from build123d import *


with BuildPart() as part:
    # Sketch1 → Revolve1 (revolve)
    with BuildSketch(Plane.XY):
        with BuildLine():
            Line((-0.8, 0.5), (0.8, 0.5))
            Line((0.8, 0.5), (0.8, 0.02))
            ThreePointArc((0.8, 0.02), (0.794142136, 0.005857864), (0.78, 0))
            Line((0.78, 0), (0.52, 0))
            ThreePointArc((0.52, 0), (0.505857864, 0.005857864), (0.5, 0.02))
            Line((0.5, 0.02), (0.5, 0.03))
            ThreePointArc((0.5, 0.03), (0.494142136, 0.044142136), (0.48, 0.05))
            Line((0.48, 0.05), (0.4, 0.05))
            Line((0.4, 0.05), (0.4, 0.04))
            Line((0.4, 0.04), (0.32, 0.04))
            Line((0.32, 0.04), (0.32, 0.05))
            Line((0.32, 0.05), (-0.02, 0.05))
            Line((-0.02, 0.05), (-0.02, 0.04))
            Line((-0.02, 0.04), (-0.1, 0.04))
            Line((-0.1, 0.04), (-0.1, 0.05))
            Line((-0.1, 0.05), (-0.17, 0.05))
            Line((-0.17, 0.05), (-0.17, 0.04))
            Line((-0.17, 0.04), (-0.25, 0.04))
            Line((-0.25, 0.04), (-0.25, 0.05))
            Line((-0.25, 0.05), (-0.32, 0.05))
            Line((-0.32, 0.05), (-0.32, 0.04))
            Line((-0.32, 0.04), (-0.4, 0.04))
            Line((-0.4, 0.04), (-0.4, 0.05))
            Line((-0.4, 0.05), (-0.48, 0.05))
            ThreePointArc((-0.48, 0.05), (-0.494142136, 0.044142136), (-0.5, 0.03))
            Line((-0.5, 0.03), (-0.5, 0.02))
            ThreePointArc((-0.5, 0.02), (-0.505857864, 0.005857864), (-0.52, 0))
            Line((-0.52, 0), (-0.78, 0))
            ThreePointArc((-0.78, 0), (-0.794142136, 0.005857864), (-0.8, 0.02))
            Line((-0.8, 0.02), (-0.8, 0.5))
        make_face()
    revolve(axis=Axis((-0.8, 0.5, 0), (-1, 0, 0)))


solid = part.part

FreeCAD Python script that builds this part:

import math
import FreeCAD as App
import Part
import Sketcher

V = App.Vector

doc = App.newDocument("Part")
params = doc.addObject("Spreadsheet::Sheet", "Params")
for row, (alias, value) in enumerate([
    ("sketch1_radius", "0.02 mm"),
    ("sketch1_width", "1.6 mm"),
    ("sketch1_width2", "0.08 mm"),
    ("sketch1_width3", "0.07 mm"),
    ("sketch1_height", "0.48 mm"),
    ("revolution_angle", "360 deg"),
], start=1):
    params.set(f"A{row}", alias)
    params.set(f"B{row}", "=" + value)
    params.setAlias(f"B{row}", alias)

body = doc.addObject("PartDesign::Body", "Body")

# Sketch on XY plane
sketch1 = body.newObject("Sketcher::SketchObject", "Sketch")
sketch1.AttachmentSupport = (doc.getObject("XY_Plane"), [""])
sketch1.MapMode = "FlatFace"
sketch1.addGeometry([
    Part.LineSegment(V(0.8, 0.5, 0), V(-0.8, 0.5, 0)),  # 0
    Part.LineSegment(V(-0.8, 0.5, 0), V(-0.8, 0.02, 0)),  # 1
    Part.ArcOfCircle(Part.Circle(V(-0.78, 0.02, 0), V(0, 0, 1), 0.02), math.radians(180), math.radians(270)),  # 2
    Part.LineSegment(V(-0.78, 0, 0), V(-0.52, 0, 0)),  # 3
    Part.ArcOfCircle(Part.Circle(V(-0.52, 0.02, 0), V(0, 0, 1), 0.02), math.radians(-90), math.radians(0)),  # 4
    Part.LineSegment(V(-0.5, 0.02, 0), V(-0.5, 0.03, 0)),  # 5
    Part.ArcOfCircle(Part.Circle(V(-0.48, 0.03, 0), V(0, 0, 1), 0.02), math.radians(90), math.radians(180)),  # 6
    Part.LineSegment(V(-0.48, 0.05, 0), V(-0.4, 0.05, 0)),  # 7
    Part.LineSegment(V(-0.4, 0.05, 0), V(-0.4, 0.04, 0)),  # 8
    Part.LineSegment(V(-0.4, 0.04, 0), V(-0.32, 0.04, 0)),  # 9
    Part.LineSegment(V(-0.32, 0.04, 0), V(-0.32, 0.05, 0)),  # 10
    Part.LineSegment(V(-0.32, 0.05, 0), V(-0.25, 0.05, 0)),  # 11
    Part.LineSegment(V(-0.25, 0.05, 0), V(-0.25, 0.04, 0)),  # 12
    Part.LineSegment(V(-0.25, 0.04, 0), V(-0.17, 0.04, 0)),  # 13
    Part.LineSegment(V(-0.17, 0.04, 0), V(-0.17, 0.05, 0)),  # 14
    Part.LineSegment(V(-0.17, 0.05, 0), V(-0.1, 0.05, 0)),  # 15
    Part.LineSegment(V(-0.1, 0.05, 0), V(-0.1, 0.04, 0)),  # 16
    Part.LineSegment(V(-0.1, 0.04, 0), V(-0.02, 0.04, 0)),  # 17
    Part.LineSegment(V(-0.02, 0.04, 0), V(-0.02, 0.05, 0)),  # 18
    Part.LineSegment(V(-0.02, 0.05, 0), V(0.32, 0.05, 0)),  # 19
    Part.LineSegment(V(0.32, 0.05, 0), V(0.32, 0.04, 0)),  # 20
    Part.LineSegment(V(0.32, 0.04, 0), V(0.4, 0.04, 0)),  # 21
    Part.LineSegment(V(0.4, 0.04, 0), V(0.4, 0.05, 0)),  # 22
    Part.LineSegment(V(0.4, 0.05, 0), V(0.48, 0.05, 0)),  # 23
    Part.ArcOfCircle(Part.Circle(V(0.48, 0.03, 0), V(0, 0, 1), 0.02), math.radians(0), math.radians(90)),  # 24
    Part.LineSegment(V(0.5, 0.03, 0), V(0.5, 0.02, 0)),  # 25
    Part.ArcOfCircle(Part.Circle(V(0.52, 0.02, 0), V(0, 0, 1), 0.02), math.radians(180), math.radians(270)),  # 26
    Part.LineSegment(V(0.52, 0, 0), V(0.78, 0, 0)),  # 27
    Part.ArcOfCircle(Part.Circle(V(0.78, 0.02, 0), V(0, 0, 1), 0.02), math.radians(-90), math.radians(0)),  # 28
    Part.LineSegment(V(0.8, 0.02, 0), V(0.8, 0.5, 0)),  # 29
], False)
sketch1.addGeometry(Part.LineSegment(V(0.8, 0.5, 0), V(-0.8, 0.5, 0)), True)  # axis
sketch1.addConstraint([
    Sketcher.Constraint("Coincident", 0, 2, 1, 1),
    Sketcher.Constraint("Tangent", 1, 2, 2, 1),
    Sketcher.Constraint("Tangent", 2, 2, 3, 1),
    Sketcher.Constraint("Tangent", 3, 2, 4, 1),
    Sketcher.Constraint("Tangent", 4, 2, 5, 1),
    Sketcher.Constraint("Tangent", 5, 2, 6, 2),
    Sketcher.Constraint("Tangent", 6, 1, 7, 1),
    Sketcher.Constraint("Coincident", 7, 2, 8, 1),
    Sketcher.Constraint("Coincident", 8, 2, 9, 1),
    Sketcher.Constraint("Coincident", 9, 2, 10, 1),
    Sketcher.Constraint("Coincident", 10, 2, 11, 1),
    Sketcher.Constraint("Coincident", 11, 2, 12, 1),
    Sketcher.Constraint("Coincident", 12, 2, 13, 1),
    Sketcher.Constraint("Coincident", 13, 2, 14, 1),
    Sketcher.Constraint("Coincident", 14, 2, 15, 1),
    Sketcher.Constraint("Coincident", 15, 2, 16, 1),
    Sketcher.Constraint("Coincident", 16, 2, 17, 1),
    Sketcher.Constraint("Coincident", 17, 2, 18, 1),
    Sketcher.Constraint("Coincident", 18, 2, 19, 1),
    Sketcher.Constraint("Coincident", 19, 2, 20, 1),
    Sketcher.Constraint("Coincident", 20, 2, 21, 1),
    Sketcher.Constraint("Coincident", 21, 2, 22, 1),
    Sketcher.Constraint("Coincident", 22, 2, 23, 1),
    Sketcher.Constraint("Tangent", 23, 2, 24, 2),
    Sketcher.Constraint("Tangent", 24, 1, 25, 1),
    Sketcher.Constraint("Tangent", 25, 2, 26, 1),
    Sketcher.Constraint("Tangent", 26, 2, 27, 1),
    Sketcher.Constraint("Tangent", 27, 2, 28, 1),
    Sketcher.Constraint("Tangent", 28, 2, 29, 1),
    Sketcher.Constraint("Coincident", 29, 2, 0, 1),
    Sketcher.Constraint("Horizontal", 0),
    Sketcher.Constraint("Vertical", 1),
    Sketcher.Constraint("Horizontal", 3),
    Sketcher.Constraint("Vertical", 5),
    Sketcher.Constraint("Horizontal", 7),
    Sketcher.Constraint("Vertical", 8),
    Sketcher.Constraint("Horizontal", 9),
    Sketcher.Constraint("Vertical", 10),
    Sketcher.Constraint("Horizontal", 11),
    Sketcher.Constraint("Vertical", 12),
    Sketcher.Constraint("Horizontal", 13),
    Sketcher.Constraint("Vertical", 14),
    Sketcher.Constraint("Horizontal", 15),
    Sketcher.Constraint("Vertical", 16),
    Sketcher.Constraint("Horizontal", 17),
    Sketcher.Constraint("Vertical", 18),
    Sketcher.Constraint("Horizontal", 19),
    Sketcher.Constraint("Vertical", 20),
    Sketcher.Constraint("Horizontal", 21),
    Sketcher.Constraint("Vertical", 22),
    Sketcher.Constraint("Horizontal", 23),
    Sketcher.Constraint("Vertical", 25),
    Sketcher.Constraint("Horizontal", 27),
    Sketcher.Constraint("Vertical", 29),
    Sketcher.Constraint("Horizontal", 30),
    Sketcher.Constraint("Coincident", 30, 1, 29, 2),
    Sketcher.Constraint("Equal", 2, 4),
    Sketcher.Constraint("Equal", 4, 6),
    Sketcher.Constraint("Equal", 6, 24),
    Sketcher.Constraint("Equal", 24, 26),
    Sketcher.Constraint("Equal", 26, 28),
    Sketcher.Constraint("Symmetric", 3, 2, 26, 2, -1, 1),
    Sketcher.Constraint("Symmetric", 2, 3, 28, 3, -2),
    Sketcher.Constraint("Symmetric", 10, 2, 19, 2, -2),
    Sketcher.Constraint("Symmetric", 8, 2, 21, 2, -2),
    Sketcher.Constraint("Horizontal", 6, 3, 24, 3),
    Sketcher.Constraint("Horizontal", 7, 2, 10, 2),
    Sketcher.Constraint("Horizontal", 9, 2, 12, 2),
    Sketcher.Constraint("Horizontal", 11, 2, 14, 2),
    Sketcher.Constraint("Horizontal", 13, 2, 16, 2),
    Sketcher.Constraint("Vertical", 1, 2, 30, 2),
    Sketcher.Constraint("Equal", 7, 9),
    Sketcher.Constraint("Equal", 9, 13),
    Sketcher.Constraint("Equal", 11, 15),
    Sketcher.Constraint("Equal", 13, 17),
    Sketcher.Constraint("Equal", 5, 8),
    Sketcher.Constraint("Radius", 2, 0.02),
    Sketcher.Constraint("DistanceX", 0, 2, 0, 1, 1.6),
    Sketcher.Constraint("DistanceX", 4, 3, 24, 3, 1.0),
    Sketcher.Constraint("DistanceX", 7, 1, 7, 2, 0.08),
    Sketcher.Constraint("DistanceX", 11, 1, 11, 2, 0.07),
    Sketcher.Constraint("DistanceY", 1, 2, 1, 1, 0.48),
    Sketcher.Constraint("DistanceY", 5, 1, 5, 2, 0.01),
])
sketch1.setExpression("Constraints[76]", "Params.sketch1_radius")
sketch1.setExpression("Constraints[77]", "Params.sketch1_width")
sketch1.setExpression("Constraints[79]", "Params.sketch1_width2")
sketch1.setExpression("Constraints[80]", "Params.sketch1_width3")
sketch1.setExpression("Constraints[81]", "Params.sketch1_height")
revolution = body.newObject("PartDesign::Revolution", "Revolution")
revolution.Profile = sketch1
revolution.ReferenceAxis = (sketch1, ["Axis0"])
revolution.setExpression("Angle", "Params.revolution_angle")

doc.recompute()
